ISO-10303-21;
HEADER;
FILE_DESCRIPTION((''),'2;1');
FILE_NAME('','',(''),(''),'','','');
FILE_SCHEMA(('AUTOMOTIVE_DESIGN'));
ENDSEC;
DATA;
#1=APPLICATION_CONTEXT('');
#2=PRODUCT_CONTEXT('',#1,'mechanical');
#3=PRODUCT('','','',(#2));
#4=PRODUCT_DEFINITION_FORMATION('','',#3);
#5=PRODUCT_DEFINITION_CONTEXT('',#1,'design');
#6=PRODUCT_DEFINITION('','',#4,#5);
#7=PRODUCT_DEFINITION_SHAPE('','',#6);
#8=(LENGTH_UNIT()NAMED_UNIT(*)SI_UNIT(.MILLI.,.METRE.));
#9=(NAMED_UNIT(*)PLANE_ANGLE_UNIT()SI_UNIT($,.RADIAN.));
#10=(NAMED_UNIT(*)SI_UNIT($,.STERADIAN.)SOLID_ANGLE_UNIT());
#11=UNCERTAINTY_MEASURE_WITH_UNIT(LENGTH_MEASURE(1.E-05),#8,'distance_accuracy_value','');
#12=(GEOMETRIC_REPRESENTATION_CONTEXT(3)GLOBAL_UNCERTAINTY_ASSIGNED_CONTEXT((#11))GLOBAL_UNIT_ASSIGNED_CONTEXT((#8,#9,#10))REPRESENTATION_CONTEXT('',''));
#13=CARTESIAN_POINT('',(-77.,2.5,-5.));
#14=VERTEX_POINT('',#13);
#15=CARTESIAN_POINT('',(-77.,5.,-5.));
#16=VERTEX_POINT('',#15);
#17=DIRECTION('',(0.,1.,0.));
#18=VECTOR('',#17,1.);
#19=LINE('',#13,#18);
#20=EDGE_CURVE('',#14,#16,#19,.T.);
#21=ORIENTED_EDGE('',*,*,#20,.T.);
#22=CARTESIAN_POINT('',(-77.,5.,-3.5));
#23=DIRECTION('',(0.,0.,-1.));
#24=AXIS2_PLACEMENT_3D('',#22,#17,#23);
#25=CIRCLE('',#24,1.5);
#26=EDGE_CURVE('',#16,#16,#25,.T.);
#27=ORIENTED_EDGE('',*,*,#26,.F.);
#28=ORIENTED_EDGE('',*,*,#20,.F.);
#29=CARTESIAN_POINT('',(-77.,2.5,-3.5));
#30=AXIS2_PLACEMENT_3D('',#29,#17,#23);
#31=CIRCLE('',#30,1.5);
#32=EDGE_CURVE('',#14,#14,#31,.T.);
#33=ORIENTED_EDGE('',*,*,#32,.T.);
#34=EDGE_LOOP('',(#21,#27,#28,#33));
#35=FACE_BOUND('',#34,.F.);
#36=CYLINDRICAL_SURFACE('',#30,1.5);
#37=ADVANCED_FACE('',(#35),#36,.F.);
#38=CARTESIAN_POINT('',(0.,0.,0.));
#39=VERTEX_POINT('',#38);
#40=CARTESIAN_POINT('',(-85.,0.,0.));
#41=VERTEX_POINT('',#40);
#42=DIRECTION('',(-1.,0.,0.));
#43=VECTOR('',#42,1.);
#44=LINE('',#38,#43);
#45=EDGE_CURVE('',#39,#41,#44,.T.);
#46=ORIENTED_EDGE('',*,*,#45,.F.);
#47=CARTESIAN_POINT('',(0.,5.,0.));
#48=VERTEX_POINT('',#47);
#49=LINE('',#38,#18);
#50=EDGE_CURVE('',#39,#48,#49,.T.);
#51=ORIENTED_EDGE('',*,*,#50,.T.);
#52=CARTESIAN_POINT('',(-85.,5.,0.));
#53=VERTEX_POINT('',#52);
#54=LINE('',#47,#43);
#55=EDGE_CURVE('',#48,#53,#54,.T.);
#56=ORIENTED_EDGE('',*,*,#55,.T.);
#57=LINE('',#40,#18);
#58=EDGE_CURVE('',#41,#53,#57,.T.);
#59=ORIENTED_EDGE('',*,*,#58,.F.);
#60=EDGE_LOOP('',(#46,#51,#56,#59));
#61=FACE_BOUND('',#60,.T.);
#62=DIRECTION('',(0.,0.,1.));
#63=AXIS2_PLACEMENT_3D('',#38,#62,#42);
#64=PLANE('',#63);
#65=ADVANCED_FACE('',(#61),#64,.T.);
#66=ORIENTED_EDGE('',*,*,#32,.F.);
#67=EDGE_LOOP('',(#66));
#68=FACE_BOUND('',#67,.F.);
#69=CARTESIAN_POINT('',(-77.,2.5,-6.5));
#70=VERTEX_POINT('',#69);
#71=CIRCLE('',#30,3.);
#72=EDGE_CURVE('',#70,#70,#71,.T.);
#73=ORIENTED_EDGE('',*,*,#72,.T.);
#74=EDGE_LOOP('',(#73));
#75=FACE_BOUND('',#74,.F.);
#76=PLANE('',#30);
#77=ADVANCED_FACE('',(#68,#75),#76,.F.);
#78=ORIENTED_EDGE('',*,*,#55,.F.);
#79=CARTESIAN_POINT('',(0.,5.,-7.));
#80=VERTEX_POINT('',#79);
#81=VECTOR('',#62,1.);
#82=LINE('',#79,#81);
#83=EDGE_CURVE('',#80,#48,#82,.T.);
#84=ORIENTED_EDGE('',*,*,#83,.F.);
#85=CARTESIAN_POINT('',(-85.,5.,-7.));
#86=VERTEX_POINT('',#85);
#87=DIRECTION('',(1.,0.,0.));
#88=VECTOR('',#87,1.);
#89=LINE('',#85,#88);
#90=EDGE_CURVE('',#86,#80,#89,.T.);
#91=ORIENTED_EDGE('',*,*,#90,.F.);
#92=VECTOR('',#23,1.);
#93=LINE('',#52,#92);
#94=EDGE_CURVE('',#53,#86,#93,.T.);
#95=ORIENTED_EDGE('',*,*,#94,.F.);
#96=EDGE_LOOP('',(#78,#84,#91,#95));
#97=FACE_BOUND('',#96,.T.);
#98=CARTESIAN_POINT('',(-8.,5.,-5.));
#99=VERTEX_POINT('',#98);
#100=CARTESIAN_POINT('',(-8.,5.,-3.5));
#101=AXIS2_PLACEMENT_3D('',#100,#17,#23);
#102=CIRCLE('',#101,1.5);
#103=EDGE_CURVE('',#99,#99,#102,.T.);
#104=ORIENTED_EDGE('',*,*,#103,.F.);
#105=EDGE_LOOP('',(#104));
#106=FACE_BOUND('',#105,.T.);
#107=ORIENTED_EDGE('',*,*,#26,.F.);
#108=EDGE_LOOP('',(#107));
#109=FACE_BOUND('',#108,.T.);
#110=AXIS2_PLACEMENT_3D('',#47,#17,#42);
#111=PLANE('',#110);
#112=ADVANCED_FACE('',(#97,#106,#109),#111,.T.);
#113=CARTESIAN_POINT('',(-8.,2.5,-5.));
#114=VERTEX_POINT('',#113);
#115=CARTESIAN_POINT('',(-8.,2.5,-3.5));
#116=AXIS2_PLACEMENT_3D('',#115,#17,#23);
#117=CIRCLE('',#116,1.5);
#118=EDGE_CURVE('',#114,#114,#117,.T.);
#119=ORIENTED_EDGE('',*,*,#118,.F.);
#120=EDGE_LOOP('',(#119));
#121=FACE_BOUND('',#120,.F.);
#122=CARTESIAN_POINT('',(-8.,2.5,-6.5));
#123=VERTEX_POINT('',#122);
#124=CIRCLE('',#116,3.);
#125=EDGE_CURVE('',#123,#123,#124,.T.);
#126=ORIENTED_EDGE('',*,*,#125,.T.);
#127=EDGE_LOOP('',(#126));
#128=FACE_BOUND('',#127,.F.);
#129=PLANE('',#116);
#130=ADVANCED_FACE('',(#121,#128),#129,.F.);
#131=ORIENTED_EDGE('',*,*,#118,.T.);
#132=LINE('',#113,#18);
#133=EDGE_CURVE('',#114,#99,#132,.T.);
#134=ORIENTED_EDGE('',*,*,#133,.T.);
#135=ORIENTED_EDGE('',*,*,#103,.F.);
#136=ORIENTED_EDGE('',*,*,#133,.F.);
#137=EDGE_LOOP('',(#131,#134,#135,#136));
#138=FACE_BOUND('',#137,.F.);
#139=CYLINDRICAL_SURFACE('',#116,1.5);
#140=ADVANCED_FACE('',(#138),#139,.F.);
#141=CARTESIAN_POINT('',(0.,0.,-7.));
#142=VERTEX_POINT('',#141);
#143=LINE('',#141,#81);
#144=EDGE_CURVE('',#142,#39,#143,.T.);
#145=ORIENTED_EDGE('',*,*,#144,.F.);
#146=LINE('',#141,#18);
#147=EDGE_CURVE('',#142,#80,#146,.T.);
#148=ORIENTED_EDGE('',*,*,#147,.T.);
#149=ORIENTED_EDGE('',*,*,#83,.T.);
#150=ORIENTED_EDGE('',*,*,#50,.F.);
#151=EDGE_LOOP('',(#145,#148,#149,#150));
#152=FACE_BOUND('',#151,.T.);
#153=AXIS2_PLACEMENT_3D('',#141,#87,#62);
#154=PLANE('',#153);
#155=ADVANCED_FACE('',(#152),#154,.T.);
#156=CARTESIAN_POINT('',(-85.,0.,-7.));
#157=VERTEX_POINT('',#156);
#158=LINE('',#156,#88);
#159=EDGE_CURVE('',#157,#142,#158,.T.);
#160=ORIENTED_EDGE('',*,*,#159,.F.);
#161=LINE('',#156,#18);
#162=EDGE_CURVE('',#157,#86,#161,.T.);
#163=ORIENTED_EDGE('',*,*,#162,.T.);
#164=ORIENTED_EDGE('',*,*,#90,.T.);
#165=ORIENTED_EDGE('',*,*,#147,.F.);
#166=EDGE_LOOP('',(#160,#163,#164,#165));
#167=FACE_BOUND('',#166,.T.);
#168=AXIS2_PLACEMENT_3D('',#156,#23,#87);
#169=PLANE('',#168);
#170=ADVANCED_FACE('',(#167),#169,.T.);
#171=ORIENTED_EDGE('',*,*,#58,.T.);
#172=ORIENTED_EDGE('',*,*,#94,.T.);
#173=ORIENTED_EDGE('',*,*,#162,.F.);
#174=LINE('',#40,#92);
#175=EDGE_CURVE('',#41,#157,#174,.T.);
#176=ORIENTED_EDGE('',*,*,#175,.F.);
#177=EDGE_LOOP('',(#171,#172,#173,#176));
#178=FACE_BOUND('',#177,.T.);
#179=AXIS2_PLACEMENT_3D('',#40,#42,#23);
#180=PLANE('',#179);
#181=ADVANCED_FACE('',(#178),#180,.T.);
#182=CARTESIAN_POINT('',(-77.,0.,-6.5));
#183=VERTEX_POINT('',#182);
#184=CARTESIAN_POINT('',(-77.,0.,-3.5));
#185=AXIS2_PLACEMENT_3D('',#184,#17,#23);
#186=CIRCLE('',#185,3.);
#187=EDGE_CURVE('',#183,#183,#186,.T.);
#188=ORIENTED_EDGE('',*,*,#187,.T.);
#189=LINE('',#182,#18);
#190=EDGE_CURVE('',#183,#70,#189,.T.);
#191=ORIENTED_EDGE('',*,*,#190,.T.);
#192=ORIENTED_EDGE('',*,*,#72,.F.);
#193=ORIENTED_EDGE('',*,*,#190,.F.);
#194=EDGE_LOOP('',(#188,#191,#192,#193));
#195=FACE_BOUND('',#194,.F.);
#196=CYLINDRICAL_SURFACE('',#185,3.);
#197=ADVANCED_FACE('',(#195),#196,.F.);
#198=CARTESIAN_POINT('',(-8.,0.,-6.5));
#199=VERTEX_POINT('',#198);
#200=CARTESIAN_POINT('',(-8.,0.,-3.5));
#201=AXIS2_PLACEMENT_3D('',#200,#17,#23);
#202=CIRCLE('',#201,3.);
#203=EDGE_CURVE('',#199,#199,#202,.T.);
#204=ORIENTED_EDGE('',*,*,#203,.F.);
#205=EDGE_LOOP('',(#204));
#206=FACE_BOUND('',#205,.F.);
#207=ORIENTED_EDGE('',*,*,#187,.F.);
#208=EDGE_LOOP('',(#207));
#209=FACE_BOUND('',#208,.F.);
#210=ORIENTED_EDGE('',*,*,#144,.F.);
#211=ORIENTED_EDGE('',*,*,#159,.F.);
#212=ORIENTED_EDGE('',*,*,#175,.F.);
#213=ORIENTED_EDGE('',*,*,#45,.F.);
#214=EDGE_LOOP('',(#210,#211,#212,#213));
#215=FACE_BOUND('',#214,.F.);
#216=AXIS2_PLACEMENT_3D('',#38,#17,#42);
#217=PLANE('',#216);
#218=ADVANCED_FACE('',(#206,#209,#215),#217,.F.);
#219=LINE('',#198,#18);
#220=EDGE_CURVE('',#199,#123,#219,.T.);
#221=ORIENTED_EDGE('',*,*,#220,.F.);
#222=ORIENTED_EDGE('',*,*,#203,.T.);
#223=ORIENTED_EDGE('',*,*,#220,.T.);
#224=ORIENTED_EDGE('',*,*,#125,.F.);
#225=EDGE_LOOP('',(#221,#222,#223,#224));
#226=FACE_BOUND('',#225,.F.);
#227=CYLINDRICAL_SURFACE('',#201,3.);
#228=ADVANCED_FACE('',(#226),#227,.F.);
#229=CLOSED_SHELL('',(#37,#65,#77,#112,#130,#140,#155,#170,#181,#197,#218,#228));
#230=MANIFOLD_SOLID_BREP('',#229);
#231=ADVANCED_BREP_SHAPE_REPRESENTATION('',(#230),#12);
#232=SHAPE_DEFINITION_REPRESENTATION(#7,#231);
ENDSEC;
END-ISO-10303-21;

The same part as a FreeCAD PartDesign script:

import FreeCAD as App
import Part
import Sketcher

V = App.Vector


def add_polygon(sketch, points):
    """Adds a closed chain of lines whose ends are joined by coincident constraints."""
    first, n = sketch.GeometryCount, len(points)
    for a, b in zip(points, points[1:] + points[:1]):
        sketch.addGeometry(Part.LineSegment(App.Vector(*a, 0), App.Vector(*b, 0)), False)
    for i in range(n):
        sketch.addConstraint(Sketcher.Constraint("Coincident", first + i, 2, first + (i + 1) % n, 1))

doc = App.newDocument("Part")
params = doc.addObject("Spreadsheet::Sheet", "Params")
for row, (alias, value) in enumerate([
    ("sketch1_width", "85 mm"),
    ("sketch1_height", "7 mm"),
    ("pad1_length", "5 mm"),
    ("sketch2_diameter", "3 mm"),
    ("hole_diameter", "3 mm"),
    ("hole_cbore_diameter", "6 mm"),
    ("hole_cbore_depth", "2.5 mm"),
], start=1):
    params.set(f"A{row}", alias)
    params.set(f"B{row}", "=" + value)
    params.setAlias(f"B{row}", alias)

body = doc.addObject("PartDesign::Body", "Body")

sketch1 = body.newObject("Sketcher::SketchObject", "Sketch")
sketch1.AttachmentSupport = (doc.getObject("XZ_Plane"), [""])
sketch1.MapMode = "FlatFace"
add_polygon(sketch1, [(-85, 0), (0, 0), (0, -7), (-85, -7)])
sketch1.addConstraint(Sketcher.Constraint("Horizontal", 0))
sketch1.addConstraint(Sketcher.Constraint("Vertical", 1))
sketch1.addConstraint(Sketcher.Constraint("Horizontal", 2))
sketch1.addConstraint(Sketcher.Constraint("Vertical", 3))
sketch1.addConstraint(Sketcher.Constraint("Coincident", 0, 2, -1, 1))
sketch1.addConstraint(Sketcher.Constraint("DistanceX", 0, 1, 0, 2, 85.0))
sketch1.addConstraint(Sketcher.Constraint("DistanceY", 1, 2, 1, 1, 7.0))
sketch1.setExpression("Constraints[9]", "Params.sketch1_width")
sketch1.setExpression("Constraints[10]", "Params.sketch1_height")
pad1 = body.newObject("PartDesign::Pad", "Pad")
pad1.Profile = sketch1
pad1.setExpression("Length", "Params.pad1_length")
pad1.Reversed = True

sketch2 = body.newObject("Sketcher::SketchObject", "Sketch001")
sketch2.AttachmentSupport = (doc.getObject("XZ_Plane"), [""])
sketch2.MapMode = "FlatFace"
sketch2.addGeometry(Part.Circle(V(-77, -3.5, 0), V(0, 0, 1), 1.5), False)
sketch2.addGeometry(Part.Circle(V(-8, -3.5, 0), V(0, 0, 1), 1.5), False)
sketch2.addConstraint(Sketcher.Constraint("Equal", 0, 1))
sketch2.addConstraint(Sketcher.Constraint("Horizontal", 0, 3, 1, 3))
sketch2.addConstraint(Sketcher.Constraint("Diameter", 0, 3.0))
sketch2.addConstraint(Sketcher.Constraint("DistanceX", 0, 3, -1, 1, 77.0))
sketch2.addConstraint(Sketcher.Constraint("DistanceX", 1, 3, -1, 1, 8.0))
sketch2.addConstraint(Sketcher.Constraint("DistanceY", 0, 3, -1, 1, 3.5))
sketch2.setExpression("Constraints[2]", "Params.sketch2_diameter")
doc.recompute()
hole = body.newObject("PartDesign::Hole", "Hole")
hole.Profile = sketch2
hole.ThreadType = "None"
hole.setExpression("Diameter", "Params.hole_diameter")
hole.DepthType = "ThroughAll"
hole.HoleCutType = "Counterbore"
hole.setExpression("HoleCutDiameter", "Params.hole_cbore_diameter")
hole.setExpression("HoleCutDepth", "Params.hole_cbore_depth")

doc.recompute()
